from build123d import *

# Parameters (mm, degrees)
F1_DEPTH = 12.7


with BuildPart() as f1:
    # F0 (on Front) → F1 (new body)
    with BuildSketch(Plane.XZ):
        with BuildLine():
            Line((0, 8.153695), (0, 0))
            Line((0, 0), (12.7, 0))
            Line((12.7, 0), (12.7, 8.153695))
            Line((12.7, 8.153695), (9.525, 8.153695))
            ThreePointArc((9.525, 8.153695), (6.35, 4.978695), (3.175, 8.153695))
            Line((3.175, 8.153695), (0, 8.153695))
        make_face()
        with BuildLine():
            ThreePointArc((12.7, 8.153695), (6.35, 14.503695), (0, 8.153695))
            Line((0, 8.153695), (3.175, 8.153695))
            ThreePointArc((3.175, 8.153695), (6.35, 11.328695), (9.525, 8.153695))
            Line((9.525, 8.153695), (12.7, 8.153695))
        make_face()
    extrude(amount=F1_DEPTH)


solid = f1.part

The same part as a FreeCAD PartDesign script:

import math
import FreeCAD as App
import Part
import Sketcher
from FreeCAD import Vector
Q = App.Units.Quantity

doc = App.newDocument("Part")
body = doc.addObject("PartDesign::Body", "Body")

# Sketch on XZ plane
sketch1 = body.newObject("Sketcher::SketchObject", "Sketch")
sketch1.AttachmentSupport = (doc.getObject("XZ_Plane"), [""])
sketch1.MapMode = "FlatFace"
sketch1.addGeometry(Part.LineSegment(Vector(0, 8.153695, 0), Vector(0, 0, 0)), False)
sketch1.addGeometry(Part.LineSegment(Vector(0, 0, 0), Vector(12.7, 0, 0)), False)
sketch1.addGeometry(Part.LineSegment(Vector(12.7, 0, 0), Vector(12.7, 8.153695, 0)), False)
sketch1.addGeometry(Part.ArcOfCircle(Part.Circle(Vector(6.35, 8.153695, 0), Vector(0, 0, 1), 6.35), math.radians(0), math.radians(180)), False)
sketch1.addGeometry(Part.Circle(Vector(6.35, 8.153695, 0), Vector(0, 0, 1), 3.175), False)
sketch1.addConstraint(Sketcher.Constraint("Coincident", 0, 2, 1, 1))
sketch1.addConstraint(Sketcher.Constraint("Coincident", 1, 2, 2, 1))
sketch1.addConstraint(Sketcher.Constraint("Tangent", 2, 2, 3, 1))
sketch1.addConstraint(Sketcher.Constraint("Tangent", 3, 2, 0, 1))
sketch1.addConstraint(Sketcher.Constraint("Vertical", 0))
sketch1.addConstraint(Sketcher.Constraint("Horizontal", 1))
sketch1.addConstraint(Sketcher.Constraint("Vertical", 2))
sketch1.addConstraint(Sketcher.Constraint("Coincident", 0, 2, -1, 1))
sketch1.addConstraint(Sketcher.Constraint("Coincident", 4, 3, 3, 3))
sketch1.addConstraint(Sketcher.Constraint("Diameter", 4, Q("0.25 in")))
sketch1.addConstraint(Sketcher.Constraint("Radius", 3, Q("0.25 in")))
sketch1.addConstraint(Sketcher.Constraint("DistanceY", 0, 2, 0, 1, 8.153695))
pad1 = body.newObject("PartDesign::Pad", "Pad")
pad1.Profile = sketch1
pad1.Length = Q("0.5 in")

doc.recompute()
